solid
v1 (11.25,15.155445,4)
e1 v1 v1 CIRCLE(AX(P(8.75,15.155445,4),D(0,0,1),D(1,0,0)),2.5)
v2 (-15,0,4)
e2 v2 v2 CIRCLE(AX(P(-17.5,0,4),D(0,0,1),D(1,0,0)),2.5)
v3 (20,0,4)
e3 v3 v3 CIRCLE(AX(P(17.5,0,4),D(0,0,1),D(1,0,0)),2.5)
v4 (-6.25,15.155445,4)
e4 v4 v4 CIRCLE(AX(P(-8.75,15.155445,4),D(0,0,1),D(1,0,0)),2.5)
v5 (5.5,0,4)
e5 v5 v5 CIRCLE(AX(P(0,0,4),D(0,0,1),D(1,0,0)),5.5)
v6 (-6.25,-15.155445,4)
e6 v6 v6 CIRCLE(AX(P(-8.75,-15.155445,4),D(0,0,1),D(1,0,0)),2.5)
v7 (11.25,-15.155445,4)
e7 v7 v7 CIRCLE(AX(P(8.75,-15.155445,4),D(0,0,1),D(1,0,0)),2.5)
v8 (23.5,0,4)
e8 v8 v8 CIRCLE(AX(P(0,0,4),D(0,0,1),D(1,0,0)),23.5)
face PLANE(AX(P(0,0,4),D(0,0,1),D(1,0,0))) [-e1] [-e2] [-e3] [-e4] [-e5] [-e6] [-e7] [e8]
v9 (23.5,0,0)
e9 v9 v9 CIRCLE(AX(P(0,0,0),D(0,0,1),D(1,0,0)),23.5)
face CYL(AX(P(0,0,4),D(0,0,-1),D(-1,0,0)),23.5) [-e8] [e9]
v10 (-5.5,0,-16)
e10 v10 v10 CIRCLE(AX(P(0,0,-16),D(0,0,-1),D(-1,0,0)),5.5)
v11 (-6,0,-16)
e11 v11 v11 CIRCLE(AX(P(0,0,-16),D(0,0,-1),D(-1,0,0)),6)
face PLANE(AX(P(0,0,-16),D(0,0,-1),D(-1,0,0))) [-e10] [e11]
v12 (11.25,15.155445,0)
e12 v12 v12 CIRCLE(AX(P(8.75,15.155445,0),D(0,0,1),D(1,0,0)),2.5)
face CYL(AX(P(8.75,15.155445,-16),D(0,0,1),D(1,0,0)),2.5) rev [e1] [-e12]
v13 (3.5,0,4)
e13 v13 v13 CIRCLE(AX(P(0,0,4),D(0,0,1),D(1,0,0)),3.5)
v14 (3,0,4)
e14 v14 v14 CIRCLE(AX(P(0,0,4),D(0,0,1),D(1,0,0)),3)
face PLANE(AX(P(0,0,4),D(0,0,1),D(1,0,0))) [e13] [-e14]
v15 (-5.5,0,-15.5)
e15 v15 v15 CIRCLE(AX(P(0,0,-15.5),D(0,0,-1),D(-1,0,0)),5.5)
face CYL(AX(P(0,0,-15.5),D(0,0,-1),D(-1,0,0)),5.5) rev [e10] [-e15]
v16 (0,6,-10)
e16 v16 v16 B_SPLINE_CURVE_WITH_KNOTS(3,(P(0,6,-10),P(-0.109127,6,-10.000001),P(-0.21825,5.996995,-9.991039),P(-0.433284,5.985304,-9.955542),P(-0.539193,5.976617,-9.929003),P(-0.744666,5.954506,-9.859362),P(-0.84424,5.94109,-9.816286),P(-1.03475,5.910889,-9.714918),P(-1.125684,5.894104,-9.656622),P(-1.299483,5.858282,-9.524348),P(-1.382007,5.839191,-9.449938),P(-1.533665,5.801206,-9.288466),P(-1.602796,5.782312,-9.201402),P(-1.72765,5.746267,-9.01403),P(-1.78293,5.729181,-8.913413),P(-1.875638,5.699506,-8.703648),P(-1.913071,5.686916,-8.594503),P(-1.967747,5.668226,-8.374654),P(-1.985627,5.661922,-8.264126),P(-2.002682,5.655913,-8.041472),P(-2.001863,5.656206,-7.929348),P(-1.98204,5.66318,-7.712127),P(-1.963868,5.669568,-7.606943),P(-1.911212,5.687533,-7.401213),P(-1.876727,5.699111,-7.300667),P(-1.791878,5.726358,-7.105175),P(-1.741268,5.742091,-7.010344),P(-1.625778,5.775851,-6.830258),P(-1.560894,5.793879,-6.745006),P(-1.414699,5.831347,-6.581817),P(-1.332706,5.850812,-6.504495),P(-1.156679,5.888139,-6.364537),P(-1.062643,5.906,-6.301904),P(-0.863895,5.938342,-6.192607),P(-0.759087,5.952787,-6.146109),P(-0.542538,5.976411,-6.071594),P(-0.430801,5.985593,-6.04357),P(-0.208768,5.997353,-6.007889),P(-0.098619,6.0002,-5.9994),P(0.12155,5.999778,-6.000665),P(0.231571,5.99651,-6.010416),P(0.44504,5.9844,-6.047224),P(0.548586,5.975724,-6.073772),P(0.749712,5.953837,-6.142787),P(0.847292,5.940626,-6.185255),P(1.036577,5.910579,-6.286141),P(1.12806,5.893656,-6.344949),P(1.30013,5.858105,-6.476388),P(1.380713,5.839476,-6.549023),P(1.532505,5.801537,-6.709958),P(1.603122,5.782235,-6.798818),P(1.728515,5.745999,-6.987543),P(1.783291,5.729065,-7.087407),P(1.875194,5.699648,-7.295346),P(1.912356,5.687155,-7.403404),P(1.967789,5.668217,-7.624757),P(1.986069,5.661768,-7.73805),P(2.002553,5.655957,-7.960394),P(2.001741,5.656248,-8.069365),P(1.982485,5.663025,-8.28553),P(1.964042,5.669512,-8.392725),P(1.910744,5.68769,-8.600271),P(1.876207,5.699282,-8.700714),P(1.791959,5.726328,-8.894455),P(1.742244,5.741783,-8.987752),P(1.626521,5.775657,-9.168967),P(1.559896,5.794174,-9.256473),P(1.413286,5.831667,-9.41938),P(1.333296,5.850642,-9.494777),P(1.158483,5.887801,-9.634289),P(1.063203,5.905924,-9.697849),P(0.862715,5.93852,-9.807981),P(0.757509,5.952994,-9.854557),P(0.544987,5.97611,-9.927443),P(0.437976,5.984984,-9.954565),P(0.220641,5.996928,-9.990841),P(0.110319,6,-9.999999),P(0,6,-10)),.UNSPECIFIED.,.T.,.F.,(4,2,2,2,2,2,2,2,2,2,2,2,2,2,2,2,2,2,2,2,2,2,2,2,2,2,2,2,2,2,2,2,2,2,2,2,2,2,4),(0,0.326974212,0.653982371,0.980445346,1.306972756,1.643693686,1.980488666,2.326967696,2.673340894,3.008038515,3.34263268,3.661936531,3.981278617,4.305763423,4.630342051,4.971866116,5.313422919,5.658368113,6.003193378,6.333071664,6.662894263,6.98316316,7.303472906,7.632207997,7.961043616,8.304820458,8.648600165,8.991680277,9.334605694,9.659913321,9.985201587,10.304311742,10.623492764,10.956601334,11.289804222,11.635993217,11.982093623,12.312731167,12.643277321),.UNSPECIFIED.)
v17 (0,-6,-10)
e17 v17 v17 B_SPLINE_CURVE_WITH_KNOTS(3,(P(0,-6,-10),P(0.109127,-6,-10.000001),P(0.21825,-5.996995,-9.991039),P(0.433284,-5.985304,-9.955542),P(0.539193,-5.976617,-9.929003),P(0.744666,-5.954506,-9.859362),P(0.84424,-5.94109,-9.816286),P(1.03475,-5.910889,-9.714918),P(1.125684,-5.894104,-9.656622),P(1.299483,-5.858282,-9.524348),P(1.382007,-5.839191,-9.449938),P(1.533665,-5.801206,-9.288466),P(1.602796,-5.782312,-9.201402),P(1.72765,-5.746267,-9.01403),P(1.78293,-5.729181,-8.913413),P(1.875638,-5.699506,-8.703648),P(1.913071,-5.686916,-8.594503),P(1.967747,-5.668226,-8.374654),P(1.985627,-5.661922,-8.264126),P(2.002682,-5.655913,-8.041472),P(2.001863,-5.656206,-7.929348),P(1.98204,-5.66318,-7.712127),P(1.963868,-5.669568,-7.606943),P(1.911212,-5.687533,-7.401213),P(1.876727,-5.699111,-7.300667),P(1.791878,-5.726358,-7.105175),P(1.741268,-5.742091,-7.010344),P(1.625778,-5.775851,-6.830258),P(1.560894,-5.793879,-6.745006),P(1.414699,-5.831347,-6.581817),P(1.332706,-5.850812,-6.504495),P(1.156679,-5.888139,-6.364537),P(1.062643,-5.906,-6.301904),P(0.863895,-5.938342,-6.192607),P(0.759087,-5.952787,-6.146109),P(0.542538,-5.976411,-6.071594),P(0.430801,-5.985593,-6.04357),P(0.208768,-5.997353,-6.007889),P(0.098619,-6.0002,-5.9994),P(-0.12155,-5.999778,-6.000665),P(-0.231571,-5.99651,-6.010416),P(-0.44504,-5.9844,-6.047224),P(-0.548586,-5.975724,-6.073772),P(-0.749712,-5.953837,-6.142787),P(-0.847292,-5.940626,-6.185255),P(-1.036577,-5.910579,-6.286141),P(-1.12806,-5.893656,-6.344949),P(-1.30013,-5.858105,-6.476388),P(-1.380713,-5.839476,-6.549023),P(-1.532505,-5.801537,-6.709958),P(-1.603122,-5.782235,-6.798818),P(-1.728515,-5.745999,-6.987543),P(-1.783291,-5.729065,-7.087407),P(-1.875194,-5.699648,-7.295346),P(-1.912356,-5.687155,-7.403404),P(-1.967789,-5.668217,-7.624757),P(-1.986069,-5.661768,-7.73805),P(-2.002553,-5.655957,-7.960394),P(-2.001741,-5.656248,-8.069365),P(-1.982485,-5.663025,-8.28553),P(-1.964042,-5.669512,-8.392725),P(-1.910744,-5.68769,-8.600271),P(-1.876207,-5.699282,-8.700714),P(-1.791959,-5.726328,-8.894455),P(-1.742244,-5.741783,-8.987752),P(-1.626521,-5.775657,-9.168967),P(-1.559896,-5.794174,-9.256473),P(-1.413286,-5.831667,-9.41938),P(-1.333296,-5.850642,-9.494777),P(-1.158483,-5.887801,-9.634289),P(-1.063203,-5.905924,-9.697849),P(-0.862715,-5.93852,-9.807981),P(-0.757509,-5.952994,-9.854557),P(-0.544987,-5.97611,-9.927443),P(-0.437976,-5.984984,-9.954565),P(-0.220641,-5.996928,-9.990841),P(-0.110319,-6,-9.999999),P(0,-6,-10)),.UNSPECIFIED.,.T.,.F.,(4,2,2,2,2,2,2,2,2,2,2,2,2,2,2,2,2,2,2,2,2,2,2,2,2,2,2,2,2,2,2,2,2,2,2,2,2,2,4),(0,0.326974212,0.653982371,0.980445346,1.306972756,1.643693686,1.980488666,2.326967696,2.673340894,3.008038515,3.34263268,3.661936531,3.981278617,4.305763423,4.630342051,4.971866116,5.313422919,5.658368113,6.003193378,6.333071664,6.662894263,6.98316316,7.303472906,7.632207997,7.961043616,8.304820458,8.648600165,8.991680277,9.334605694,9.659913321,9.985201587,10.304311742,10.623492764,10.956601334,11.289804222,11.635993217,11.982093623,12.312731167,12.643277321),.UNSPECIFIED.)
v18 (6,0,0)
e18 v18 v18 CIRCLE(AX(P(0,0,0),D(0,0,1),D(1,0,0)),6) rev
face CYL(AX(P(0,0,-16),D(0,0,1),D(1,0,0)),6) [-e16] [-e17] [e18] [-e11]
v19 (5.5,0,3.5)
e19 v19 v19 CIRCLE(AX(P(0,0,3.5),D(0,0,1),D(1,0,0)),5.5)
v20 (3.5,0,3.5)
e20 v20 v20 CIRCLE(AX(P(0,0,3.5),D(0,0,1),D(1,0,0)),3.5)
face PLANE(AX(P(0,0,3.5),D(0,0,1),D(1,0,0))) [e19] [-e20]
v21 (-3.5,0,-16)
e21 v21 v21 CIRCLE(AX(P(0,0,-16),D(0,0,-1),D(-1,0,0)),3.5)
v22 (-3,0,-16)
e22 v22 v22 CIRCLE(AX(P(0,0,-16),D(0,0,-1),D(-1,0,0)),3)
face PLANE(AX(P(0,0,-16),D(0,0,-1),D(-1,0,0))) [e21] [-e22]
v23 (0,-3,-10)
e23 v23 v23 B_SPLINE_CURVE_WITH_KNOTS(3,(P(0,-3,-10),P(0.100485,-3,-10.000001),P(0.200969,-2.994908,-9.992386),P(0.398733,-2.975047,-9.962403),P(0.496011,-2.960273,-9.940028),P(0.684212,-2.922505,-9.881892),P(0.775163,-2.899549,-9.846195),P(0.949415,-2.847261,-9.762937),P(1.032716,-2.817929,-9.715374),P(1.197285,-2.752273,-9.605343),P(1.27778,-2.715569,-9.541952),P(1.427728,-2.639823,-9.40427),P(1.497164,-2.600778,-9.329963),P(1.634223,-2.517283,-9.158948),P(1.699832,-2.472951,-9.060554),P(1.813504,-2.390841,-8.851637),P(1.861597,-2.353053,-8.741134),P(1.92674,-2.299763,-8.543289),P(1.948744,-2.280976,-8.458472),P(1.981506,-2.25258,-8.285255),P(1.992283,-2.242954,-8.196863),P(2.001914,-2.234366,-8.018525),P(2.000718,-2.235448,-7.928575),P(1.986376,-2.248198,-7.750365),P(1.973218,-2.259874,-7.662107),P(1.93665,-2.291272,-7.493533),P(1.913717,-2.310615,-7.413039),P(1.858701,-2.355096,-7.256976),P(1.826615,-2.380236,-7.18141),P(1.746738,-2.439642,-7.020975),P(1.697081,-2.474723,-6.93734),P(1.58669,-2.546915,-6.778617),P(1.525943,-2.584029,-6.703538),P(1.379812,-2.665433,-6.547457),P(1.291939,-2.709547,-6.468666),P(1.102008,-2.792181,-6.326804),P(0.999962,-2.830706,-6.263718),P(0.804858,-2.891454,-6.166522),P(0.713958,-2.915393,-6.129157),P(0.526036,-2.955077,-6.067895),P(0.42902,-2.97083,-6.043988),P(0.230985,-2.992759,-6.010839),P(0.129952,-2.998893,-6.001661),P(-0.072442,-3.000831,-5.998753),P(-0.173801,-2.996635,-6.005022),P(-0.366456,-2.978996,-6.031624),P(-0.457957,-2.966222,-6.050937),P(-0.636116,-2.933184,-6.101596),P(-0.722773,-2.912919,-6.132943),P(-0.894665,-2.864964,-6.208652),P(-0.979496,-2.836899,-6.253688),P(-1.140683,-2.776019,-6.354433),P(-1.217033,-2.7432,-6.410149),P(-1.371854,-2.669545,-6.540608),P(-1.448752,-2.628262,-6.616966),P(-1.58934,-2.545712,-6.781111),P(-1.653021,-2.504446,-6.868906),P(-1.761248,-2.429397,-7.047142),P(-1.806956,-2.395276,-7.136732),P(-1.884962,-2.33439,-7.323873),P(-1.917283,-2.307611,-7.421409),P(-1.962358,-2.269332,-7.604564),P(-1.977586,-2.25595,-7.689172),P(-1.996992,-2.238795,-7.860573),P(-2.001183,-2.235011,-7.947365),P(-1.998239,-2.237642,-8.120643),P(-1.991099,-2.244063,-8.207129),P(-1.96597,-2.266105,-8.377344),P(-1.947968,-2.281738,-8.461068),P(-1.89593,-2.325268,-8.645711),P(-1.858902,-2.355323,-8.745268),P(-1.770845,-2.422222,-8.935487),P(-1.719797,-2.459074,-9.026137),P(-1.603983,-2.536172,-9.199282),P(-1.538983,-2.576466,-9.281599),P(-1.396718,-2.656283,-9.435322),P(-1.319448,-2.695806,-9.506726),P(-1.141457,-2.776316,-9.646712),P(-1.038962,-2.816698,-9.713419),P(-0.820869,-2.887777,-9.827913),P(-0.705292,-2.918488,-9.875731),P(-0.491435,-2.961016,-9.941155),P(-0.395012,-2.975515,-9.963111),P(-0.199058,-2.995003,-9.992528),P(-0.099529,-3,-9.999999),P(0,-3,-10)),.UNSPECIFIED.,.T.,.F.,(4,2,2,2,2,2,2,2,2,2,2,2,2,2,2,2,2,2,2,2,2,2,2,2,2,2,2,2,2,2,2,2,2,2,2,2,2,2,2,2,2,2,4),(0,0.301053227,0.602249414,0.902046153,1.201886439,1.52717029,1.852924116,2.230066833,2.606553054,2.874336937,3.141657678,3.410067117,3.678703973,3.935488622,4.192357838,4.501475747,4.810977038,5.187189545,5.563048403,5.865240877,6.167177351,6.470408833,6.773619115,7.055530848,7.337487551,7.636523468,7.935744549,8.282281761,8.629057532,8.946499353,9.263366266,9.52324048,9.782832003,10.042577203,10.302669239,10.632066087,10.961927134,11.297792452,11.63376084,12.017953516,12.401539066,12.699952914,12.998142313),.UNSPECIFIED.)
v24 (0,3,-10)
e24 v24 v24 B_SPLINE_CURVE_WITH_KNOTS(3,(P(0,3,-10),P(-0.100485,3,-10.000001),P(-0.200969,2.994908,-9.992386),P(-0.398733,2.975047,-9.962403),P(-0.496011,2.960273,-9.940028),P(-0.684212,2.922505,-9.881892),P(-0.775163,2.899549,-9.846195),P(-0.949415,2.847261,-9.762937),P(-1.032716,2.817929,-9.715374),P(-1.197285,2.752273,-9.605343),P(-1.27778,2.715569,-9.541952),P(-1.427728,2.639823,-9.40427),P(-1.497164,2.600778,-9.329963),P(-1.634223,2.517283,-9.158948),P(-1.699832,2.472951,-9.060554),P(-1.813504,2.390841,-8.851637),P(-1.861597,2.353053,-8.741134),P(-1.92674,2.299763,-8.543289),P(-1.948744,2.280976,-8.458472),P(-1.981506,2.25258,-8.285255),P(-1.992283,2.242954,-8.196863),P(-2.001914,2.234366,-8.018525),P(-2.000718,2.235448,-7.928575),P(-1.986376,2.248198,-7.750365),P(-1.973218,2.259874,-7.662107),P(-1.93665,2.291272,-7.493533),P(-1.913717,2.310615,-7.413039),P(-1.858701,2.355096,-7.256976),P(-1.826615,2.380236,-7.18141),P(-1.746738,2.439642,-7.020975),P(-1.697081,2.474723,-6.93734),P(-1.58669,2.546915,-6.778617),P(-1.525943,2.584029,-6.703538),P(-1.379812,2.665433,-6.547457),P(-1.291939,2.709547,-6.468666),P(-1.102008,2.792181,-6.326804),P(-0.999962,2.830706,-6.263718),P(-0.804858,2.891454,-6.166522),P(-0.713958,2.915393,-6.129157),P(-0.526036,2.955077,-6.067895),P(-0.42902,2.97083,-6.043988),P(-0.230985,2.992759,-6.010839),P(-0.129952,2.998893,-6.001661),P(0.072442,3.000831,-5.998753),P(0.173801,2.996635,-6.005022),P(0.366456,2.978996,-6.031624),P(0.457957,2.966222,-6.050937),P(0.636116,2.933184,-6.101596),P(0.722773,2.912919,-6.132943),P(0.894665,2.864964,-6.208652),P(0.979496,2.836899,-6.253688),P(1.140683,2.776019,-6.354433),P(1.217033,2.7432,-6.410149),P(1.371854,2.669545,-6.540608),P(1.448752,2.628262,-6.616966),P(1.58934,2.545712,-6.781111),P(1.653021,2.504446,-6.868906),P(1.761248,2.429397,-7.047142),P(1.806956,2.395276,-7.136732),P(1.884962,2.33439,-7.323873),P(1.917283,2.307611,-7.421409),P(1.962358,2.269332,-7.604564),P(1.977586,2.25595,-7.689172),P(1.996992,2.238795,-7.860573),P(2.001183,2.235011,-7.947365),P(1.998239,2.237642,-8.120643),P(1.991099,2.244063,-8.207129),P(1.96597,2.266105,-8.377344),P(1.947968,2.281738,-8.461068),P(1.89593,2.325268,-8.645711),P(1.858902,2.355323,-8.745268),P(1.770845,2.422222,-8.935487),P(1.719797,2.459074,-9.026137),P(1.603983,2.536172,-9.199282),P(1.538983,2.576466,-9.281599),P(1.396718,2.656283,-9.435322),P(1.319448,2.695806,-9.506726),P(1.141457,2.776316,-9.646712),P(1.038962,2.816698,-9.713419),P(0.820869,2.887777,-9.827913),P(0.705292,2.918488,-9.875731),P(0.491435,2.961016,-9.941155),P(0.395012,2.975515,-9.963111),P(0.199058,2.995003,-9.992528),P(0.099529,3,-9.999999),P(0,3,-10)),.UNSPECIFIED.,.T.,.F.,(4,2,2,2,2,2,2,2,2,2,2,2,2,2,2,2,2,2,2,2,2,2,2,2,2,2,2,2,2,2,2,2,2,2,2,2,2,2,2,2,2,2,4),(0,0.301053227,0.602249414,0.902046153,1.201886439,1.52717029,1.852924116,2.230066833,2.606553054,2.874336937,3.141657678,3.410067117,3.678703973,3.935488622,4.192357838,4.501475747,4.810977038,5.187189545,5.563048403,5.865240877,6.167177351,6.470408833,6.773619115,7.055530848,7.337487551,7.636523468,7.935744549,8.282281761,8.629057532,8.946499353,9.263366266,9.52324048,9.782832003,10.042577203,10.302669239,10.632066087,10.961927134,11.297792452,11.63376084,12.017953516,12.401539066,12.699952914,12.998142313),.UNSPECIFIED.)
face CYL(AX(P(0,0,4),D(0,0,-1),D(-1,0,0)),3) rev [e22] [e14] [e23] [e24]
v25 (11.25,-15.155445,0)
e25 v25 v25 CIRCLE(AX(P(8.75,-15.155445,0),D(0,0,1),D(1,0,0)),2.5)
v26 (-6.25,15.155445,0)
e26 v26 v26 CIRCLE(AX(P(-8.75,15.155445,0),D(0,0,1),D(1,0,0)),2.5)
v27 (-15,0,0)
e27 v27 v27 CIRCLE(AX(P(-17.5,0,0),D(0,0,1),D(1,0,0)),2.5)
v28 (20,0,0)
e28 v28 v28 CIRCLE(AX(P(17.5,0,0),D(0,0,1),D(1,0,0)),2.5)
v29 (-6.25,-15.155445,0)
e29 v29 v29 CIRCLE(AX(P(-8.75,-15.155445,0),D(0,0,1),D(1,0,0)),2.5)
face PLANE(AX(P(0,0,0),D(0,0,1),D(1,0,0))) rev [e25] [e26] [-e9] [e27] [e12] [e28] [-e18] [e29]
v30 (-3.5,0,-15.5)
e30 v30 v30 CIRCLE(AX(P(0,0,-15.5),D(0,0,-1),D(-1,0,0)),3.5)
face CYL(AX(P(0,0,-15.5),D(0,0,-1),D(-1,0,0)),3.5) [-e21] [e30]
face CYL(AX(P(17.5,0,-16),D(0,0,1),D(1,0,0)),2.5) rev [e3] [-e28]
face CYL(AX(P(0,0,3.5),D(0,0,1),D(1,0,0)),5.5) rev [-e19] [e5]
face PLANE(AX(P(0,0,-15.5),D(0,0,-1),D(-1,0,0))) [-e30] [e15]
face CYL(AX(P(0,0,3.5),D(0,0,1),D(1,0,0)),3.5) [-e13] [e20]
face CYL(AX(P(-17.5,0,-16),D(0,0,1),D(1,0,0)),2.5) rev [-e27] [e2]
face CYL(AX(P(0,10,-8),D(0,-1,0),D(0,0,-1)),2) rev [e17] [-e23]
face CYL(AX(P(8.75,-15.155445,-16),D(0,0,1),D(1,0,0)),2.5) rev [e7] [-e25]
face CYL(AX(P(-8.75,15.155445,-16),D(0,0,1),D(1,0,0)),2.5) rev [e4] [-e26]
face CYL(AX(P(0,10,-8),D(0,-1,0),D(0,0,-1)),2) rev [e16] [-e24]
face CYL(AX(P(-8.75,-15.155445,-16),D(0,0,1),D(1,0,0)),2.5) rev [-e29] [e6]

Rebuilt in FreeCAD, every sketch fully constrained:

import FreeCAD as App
import Part
import Sketcher

doc = App.newDocument("Part")
body = doc.addObject("PartDesign::Body", "Body")

sketch1 = doc.addObject("Sketcher::SketchObject", "Sketch")
body.addObject(sketch1)
sketch1.AttachmentSupport = (doc.XY_Plane, [""])
sketch1.MapMode = "FlatFace"
sketch1.addGeometry(Part.Circle(App.Vector(0, 0, 0), App.Vector(0, 0, 1), 23.5), False)
sketch1.addGeometry(Part.Circle(App.Vector(0, 0, 0), App.Vector(0, 0, 1), 3), False)
sketch1.addConstraint(Sketcher.Constraint("Coincident", 0, 3, -1, 1))
sketch1.addConstraint(Sketcher.Constraint("Coincident", 1, 3, -1, 1))
sketch1.addConstraint(Sketcher.Constraint("Diameter", 0, 47.0))
sketch1.addConstraint(Sketcher.Constraint("Diameter", 1, 6.0))
pad1 = doc.addObject("PartDesign::Pad", "Pad")
body.addObject(pad1)
pad1.Profile = sketch1
pad1.Length = 4

sketch2 = doc.addObject("Sketcher::SketchObject", "Sketch001")
body.addObject(sketch2)
sketch2.AttachmentSupport = (doc.XY_Plane, [""])
sketch2.MapMode = "FlatFace"
sketch2.addGeometry(Part.Circle(App.Vector(0, 0, 0), App.Vector(0, 0, 1), 6), False)
sketch2.addGeometry(Part.Circle(App.Vector(0, 0, 0), App.Vector(0, 0, 1), 3), False)
sketch2.addConstraint(Sketcher.Constraint("Coincident", 0, 3, -1, 1))
sketch2.addConstraint(Sketcher.Constraint("Coincident", 1, 3, -1, 1))
sketch2.addConstraint(Sketcher.Constraint("Diameter", 0, 12.0))
sketch2.addConstraint(Sketcher.Constraint("Diameter", 1, 6.0))
pad2 = doc.addObject("PartDesign::Pad", "Pad001")
body.addObject(pad2)
pad2.Profile = sketch2
pad2.Length = 16
pad2.Reversed = True

sketch3 = doc.addObject("Sketcher::SketchObject", "Sketch002")
body.addObject(sketch3)
sketch3.AttachmentSupport = (doc.XY_Plane, [""])
sketch3.MapMode = "FlatFace"
sketch3.AttachmentOffset = App.Placement(App.Vector(0, 0, 4), App.Rotation())
sketch3.addGeometry(Part.Circle(App.Vector(-17.5, 0, 0), App.Vector(0, 0, 1), 2.5), False)
sketch3.addGeometry(Part.Circle(App.Vector(-8.8, 15.2, 0), App.Vector(0, 0, 1), 2.5), False)
sketch3.addGeometry(Part.Circle(App.Vector(8.8, 15.2, 0), App.Vector(0, 0, 1), 2.5), False)
sketch3.addGeometry(Part.Circle(App.Vector(17.5, 0, 0), App.Vector(0, 0, 1), 2.5), False)
sketch3.addGeometry(Part.Circle(App.Vector(8.8, -15.2, 0), App.Vector(0, 0, 1), 2.5), False)
sketch3.addGeometry(Part.Circle(App.Vector(-8.8, -15.2, 0), App.Vector(0, 0, 1), 2.5), False)
sketch3.addConstraint(Sketcher.Constraint("Equal", 0, 1))
sketch3.addConstraint(Sketcher.Constraint("Equal", 1, 2))
sketch3.addConstraint(Sketcher.Constraint("Equal", 2, 3))
sketch3.addConstraint(Sketcher.Constraint("Equal", 3, 4))
sketch3.addConstraint(Sketcher.Constraint("Equal", 4, 5))
sketch3.addConstraint(Sketcher.Constraint("Symmetric", 0, 3, 3, 3, -1, 1))
sketch3.addConstraint(Sketcher.Constraint("Symmetric", 1, 3, 4, 3, -1, 1))
sketch3.addConstraint(Sketcher.Constraint("Symmetric", 2, 3, 5, 3, -1, 1))
sketch3.addConstraint(Sketcher.Constraint("Symmetric", 1, 3, 2, 3, -2))
sketch3.addConstraint(Sketcher.Constraint("PointOnObject", 0, 3, -1))
sketch3.addConstraint(Sketcher.Constraint("Diameter", 0, 5.0))
sketch3.addConstraint(Sketcher.Constraint("DistanceX", 0, 3, 3, 3, 35.0))
sketch3.addConstraint(Sketcher.Constraint("DistanceX", 1, 3, 2, 3, 17.5))
sketch3.addConstraint(Sketcher.Constraint("DistanceY", 4, 3, 2, 3, 30.310889))
pocket1 = doc.addObject("PartDesign::Pocket", "Pocket")
body.addObject(pocket1)
pocket1.Profile = sketch3
pocket1.Type = "ThroughAll"

sketch4 = doc.addObject("Sketcher::SketchObject", "Sketch003")
body.addObject(sketch4)
sketch4.AttachmentSupport = (doc.XY_Plane, [""])
sketch4.MapMode = "FlatFace"
sketch4.AttachmentOffset = App.Placement(App.Vector(0, 0, 4), App.Rotation())
sketch4.addGeometry(Part.Circle(App.Vector(0, 0, 0), App.Vector(0, 0, 1), 5.5), False)
sketch4.addGeometry(Part.Circle(App.Vector(0, 0, 0), App.Vector(0, 0, 1), 3.5), False)
sketch4.addConstraint(Sketcher.Constraint("Coincident", 0, 3, -1, 1))
sketch4.addConstraint(Sketcher.Constraint("Coincident", 1, 3, -1, 1))
sketch4.addConstraint(Sketcher.Constraint("Diameter", 0, 11.0))
sketch4.addConstraint(Sketcher.Constraint("Diameter", 1, 7.0))
pocket2 = doc.addObject("PartDesign::Pocket", "Pocket001")
body.addObject(pocket2)
pocket2.Profile = sketch4
pocket2.Length = 0.5

sketch5 = doc.addObject("Sketcher::SketchObject", "Sketch004")
body.addObject(sketch5)
sketch5.AttachmentSupport = (doc.XY_Plane, [""])
sketch5.MapMode = "FlatFace"
sketch5.AttachmentOffset = App.Placement(App.Vector(0, 0, -16), App.Rotation())
sketch5.addGeometry(Part.Circle(App.Vector(0, 0, 0), App.Vector(0, 0, 1), 5.5), False)
sketch5.addGeometry(Part.Circle(App.Vector(0, 0, 0), App.Vector(0, 0, 1), 3.5), False)
sketch5.addConstraint(Sketcher.Constraint("Coincident", 0, 3, -1, 1))
sketch5.addConstraint(Sketcher.Constraint("Coincident", 1, 3, -1, 1))
sketch5.addConstraint(Sketcher.Constraint("Diameter", 0, 11.0))
sketch5.addConstraint(Sketcher.Constraint("Diameter", 1, 7.0))
pocket3 = doc.addObject("PartDesign::Pocket", "Pocket002")
body.addObject(pocket3)
pocket3.Profile = sketch5
pocket3.Length = 0.5
pocket3.Reversed = True

sketch6 = doc.addObject("Sketcher::SketchObject", "Sketch005")
body.addObject(sketch6)
sketch6.AttachmentSupport = (doc.XZ_Plane, [""])
sketch6.MapMode = "FlatFace"
sketch6.addGeometry(Part.Circle(App.Vector(0, -8, 0), App.Vector(0, 0, 1), 2), False)
sketch6.addConstraint(Sketcher.Constraint("PointOnObject", 0, 3, -2))
sketch6.addConstraint(Sketcher.Constraint("Diameter", 0, 4.0))
sketch6.addConstraint(Sketcher.Constraint("DistanceY", 0, 3, -1, 1, 8.0))
pocket4 = doc.addObject("PartDesign::Pocket", "Pocket003")
body.addObject(pocket4)
pocket4.Profile = sketch6
pocket4.Type = "ThroughAll"
pocket4.Midplane = True

doc.recompute()
